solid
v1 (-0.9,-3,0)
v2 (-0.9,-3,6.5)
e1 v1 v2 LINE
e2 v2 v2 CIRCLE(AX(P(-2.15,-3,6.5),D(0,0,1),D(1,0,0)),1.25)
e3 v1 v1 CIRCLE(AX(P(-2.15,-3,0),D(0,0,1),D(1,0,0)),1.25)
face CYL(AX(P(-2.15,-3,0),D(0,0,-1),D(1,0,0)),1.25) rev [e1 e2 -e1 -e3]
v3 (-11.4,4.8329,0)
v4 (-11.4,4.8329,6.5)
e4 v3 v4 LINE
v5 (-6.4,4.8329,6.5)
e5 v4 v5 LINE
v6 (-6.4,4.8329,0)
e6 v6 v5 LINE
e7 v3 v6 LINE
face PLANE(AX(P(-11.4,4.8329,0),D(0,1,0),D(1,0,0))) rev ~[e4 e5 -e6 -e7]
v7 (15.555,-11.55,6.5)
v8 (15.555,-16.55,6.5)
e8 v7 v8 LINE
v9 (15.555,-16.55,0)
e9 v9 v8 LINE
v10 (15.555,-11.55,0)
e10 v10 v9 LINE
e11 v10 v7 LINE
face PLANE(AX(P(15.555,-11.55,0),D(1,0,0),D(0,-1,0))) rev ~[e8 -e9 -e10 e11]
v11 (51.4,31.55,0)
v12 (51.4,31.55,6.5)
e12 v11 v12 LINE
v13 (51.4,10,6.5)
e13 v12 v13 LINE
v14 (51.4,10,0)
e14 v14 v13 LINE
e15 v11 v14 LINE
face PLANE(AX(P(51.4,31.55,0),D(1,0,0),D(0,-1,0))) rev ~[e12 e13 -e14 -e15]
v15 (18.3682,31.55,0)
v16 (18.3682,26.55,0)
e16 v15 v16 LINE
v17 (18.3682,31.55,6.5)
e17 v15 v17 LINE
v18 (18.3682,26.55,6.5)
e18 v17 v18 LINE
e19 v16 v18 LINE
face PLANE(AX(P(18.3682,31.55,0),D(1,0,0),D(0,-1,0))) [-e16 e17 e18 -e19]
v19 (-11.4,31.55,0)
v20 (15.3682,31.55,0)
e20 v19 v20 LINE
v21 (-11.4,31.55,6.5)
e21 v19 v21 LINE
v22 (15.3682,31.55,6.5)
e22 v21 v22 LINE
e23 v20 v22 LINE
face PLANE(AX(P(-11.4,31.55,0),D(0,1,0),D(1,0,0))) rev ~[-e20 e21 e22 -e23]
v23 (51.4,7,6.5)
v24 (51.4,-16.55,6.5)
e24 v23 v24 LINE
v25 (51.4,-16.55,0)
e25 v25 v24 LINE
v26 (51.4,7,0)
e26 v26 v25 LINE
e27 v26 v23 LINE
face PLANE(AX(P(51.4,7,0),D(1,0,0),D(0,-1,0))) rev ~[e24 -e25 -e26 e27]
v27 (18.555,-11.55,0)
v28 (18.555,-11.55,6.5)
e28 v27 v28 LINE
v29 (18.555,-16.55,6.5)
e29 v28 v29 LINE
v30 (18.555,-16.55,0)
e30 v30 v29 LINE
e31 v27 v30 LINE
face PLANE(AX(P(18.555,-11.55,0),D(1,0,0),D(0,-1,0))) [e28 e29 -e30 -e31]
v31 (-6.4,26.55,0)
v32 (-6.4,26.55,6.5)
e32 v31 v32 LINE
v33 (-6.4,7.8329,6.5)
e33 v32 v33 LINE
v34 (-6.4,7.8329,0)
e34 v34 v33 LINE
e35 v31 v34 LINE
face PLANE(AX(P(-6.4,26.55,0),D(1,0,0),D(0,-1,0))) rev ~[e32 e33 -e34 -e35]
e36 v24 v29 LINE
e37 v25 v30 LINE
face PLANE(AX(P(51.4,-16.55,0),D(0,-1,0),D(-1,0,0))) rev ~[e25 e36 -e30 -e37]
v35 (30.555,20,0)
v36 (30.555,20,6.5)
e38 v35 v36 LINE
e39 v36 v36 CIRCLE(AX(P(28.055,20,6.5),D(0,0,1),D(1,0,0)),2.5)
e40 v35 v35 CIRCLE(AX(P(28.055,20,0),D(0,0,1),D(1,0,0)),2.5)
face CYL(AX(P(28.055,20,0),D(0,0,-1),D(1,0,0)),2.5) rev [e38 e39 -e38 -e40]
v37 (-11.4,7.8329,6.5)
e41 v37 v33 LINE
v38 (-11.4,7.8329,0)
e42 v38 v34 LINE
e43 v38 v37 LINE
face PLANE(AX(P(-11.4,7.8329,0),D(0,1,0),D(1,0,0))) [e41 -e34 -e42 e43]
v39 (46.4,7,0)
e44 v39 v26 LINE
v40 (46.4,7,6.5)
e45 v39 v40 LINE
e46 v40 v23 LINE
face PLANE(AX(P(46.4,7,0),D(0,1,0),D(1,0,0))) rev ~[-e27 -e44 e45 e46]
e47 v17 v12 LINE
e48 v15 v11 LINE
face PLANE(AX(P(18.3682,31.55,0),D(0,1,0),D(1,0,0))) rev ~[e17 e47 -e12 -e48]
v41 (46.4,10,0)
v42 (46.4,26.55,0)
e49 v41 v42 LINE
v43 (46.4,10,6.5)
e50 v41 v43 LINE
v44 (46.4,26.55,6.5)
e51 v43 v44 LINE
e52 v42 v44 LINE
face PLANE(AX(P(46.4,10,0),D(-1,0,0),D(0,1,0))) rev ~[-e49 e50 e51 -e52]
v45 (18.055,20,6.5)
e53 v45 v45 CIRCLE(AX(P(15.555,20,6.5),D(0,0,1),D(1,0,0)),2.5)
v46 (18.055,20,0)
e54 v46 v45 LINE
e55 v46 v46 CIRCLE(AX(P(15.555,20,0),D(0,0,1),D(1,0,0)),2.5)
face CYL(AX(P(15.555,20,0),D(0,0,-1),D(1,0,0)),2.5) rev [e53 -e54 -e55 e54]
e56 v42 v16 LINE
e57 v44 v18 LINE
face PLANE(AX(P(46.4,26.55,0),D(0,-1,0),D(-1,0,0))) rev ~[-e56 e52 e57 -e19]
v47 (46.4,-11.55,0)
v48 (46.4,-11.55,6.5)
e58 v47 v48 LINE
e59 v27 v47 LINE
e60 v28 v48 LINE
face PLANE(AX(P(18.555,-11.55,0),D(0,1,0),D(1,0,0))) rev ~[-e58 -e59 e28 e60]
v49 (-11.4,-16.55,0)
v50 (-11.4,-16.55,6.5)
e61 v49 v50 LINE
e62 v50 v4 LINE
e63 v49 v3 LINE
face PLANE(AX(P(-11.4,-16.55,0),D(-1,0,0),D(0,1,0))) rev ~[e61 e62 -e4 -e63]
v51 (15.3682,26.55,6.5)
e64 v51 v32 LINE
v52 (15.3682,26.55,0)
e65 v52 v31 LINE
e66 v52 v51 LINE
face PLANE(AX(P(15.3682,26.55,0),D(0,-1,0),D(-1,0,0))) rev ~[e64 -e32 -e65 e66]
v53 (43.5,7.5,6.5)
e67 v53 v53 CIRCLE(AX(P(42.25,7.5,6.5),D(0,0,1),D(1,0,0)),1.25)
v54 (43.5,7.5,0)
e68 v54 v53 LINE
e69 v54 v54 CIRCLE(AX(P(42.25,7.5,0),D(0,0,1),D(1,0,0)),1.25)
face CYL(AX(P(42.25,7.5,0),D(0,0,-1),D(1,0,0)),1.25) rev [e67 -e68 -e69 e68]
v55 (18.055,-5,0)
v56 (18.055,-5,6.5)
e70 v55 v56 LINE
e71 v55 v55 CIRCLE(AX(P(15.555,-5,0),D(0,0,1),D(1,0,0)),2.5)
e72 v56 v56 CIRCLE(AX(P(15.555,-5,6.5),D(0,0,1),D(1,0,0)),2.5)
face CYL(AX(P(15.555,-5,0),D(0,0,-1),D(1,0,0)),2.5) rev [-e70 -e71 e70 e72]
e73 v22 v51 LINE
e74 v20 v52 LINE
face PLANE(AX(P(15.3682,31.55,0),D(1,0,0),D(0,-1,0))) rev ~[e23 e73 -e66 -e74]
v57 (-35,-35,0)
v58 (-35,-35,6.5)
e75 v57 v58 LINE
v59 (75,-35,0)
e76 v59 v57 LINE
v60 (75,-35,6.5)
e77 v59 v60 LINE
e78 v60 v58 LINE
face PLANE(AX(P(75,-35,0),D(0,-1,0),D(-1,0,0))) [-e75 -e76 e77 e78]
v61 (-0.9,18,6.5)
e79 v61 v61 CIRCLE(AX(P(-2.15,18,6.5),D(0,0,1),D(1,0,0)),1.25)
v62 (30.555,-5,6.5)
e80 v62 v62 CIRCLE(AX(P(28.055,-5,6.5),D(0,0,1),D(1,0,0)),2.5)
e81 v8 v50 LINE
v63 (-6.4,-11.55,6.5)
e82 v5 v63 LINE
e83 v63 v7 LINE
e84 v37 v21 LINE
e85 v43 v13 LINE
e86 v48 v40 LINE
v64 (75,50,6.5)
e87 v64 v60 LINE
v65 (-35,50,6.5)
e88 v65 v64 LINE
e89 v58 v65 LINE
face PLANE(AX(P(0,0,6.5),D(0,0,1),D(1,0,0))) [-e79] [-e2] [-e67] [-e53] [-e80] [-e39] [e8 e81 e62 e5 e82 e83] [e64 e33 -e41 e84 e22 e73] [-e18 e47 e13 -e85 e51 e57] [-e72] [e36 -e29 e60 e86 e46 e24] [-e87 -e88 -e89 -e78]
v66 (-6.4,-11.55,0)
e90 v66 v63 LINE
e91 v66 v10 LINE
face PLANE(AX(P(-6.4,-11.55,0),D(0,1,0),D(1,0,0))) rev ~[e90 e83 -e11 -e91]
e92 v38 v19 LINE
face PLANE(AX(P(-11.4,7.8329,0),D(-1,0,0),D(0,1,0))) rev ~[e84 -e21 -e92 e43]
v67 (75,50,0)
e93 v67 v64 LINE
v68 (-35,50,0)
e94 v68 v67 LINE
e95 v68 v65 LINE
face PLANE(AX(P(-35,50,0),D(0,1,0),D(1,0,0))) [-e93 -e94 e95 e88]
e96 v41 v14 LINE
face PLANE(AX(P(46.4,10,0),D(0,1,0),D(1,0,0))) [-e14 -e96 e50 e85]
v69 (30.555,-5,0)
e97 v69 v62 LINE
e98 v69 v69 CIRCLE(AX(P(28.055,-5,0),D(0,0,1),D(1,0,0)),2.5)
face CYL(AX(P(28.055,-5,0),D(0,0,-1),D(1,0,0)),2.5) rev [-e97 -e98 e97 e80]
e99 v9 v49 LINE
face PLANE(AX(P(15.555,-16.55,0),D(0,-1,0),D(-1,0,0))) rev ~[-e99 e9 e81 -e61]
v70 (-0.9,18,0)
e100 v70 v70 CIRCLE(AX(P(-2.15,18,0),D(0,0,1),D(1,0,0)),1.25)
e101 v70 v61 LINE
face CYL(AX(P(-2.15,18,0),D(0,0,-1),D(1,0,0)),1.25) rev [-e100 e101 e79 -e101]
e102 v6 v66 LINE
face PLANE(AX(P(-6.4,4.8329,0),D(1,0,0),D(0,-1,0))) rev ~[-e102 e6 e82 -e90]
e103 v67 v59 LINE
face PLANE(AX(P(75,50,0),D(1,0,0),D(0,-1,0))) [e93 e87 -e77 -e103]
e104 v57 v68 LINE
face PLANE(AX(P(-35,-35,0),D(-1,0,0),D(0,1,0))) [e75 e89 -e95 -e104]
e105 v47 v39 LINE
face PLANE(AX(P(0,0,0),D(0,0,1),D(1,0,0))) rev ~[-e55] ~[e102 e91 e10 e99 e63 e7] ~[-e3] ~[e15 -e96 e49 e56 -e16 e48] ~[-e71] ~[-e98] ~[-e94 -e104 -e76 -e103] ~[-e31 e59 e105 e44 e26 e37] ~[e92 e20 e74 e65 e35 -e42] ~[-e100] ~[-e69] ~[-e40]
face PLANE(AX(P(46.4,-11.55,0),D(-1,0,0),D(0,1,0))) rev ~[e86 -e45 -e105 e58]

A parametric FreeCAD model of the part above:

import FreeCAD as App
import Part
import Sketcher

V = App.Vector


def add_polygon(sketch, points):
    """Adds a closed chain of lines whose ends are joined by coincident constraints."""
    first, n = sketch.GeometryCount, len(points)
    for a, b in zip(points, points[1:] + points[:1]):
        sketch.addGeometry(Part.LineSegment(App.Vector(*a, 0), App.Vector(*b, 0)), False)
    for i in range(n):
        sketch.addConstraint(Sketcher.Constraint("Coincident", first + i, 2, first + (i + 1) % n, 1))

doc = App.newDocument("Part")
body = doc.addObject("PartDesign::Body", "Body")

# Sketch on XY plane
sketch1 = body.newObject("Sketcher::SketchObject", "Sketch")
sketch1.AttachmentSupport = (doc.getObject("XY_Plane"), [""])
sketch1.MapMode = "FlatFace"
add_polygon(sketch1, [(75, 50), (-35, 50), (-35, -35), (75, -35)])  # lines 0-3
add_polygon(sketch1, [(-11.4, -16.55), (-11.4, 4.8329), (-6.4, 4.8329), (-6.4, -11.55), (15.555, -11.55), (15.555, -16.55)])  # lines 4-9
sketch1.addGeometry(Part.Circle(V(15.555, -5, 0), V(0, 0, 1), 2.5), False)  # 10
sketch1.addGeometry(Part.Circle(V(28.055, -5, 0), V(0, 0, 1), 2.5), False)  # 11
add_polygon(sketch1, [(46.4, -11.55), (46.4, 7), (51.4, 7), (51.4, -16.55), (18.555, -16.55), (18.555, -11.55)])  # lines 12-17
add_polygon(sketch1, [(-6.4, 7.8329), (-11.4, 7.8329), (-11.4, 31.55), (15.3682, 31.55), (15.3682, 26.55), (-6.4, 26.55)])  # lines 18-23
sketch1.addGeometry(Part.Circle(V(15.555, 20, 0), V(0, 0, 1), 2.5), False)  # 24
sketch1.addGeometry(Part.Circle(V(28.055, 20, 0), V(0, 0, 1), 2.5), False)  # 25
add_polygon(sketch1, [(18.3682, 26.55), (18.3682, 31.55), (51.4, 31.55), (51.4, 10), (46.4, 10), (46.4, 26.55)])  # lines 26-31
sketch1.addConstraint(Sketcher.Constraint("Horizontal", 0))
sketch1.addConstraint(Sketcher.Constraint("Vertical", 1))
sketch1.addConstraint(Sketcher.Constraint("Horizontal", 2))
sketch1.addConstraint(Sketcher.Constraint("Vertical", 3))
sketch1.addConstraint(Sketcher.Constraint("Vertical", 4))
sketch1.addConstraint(Sketcher.Constraint("Horizontal", 5))
sketch1.addConstraint(Sketcher.Constraint("Vertical", 6))
sketch1.addConstraint(Sketcher.Constraint("Horizontal", 7))
sketch1.addConstraint(Sketcher.Constraint("Vertical", 8))
sketch1.addConstraint(Sketcher.Constraint("Horizontal", 9))
sketch1.addConstraint(Sketcher.Constraint("Vertical", 12))
sketch1.addConstraint(Sketcher.Constraint("Horizontal", 13))
sketch1.addConstraint(Sketcher.Constraint("Vertical", 14))
sketch1.addConstraint(Sketcher.Constraint("Horizontal", 15))
sketch1.addConstraint(Sketcher.Constraint("Vertical", 16))
sketch1.addConstraint(Sketcher.Constraint("Horizontal", 17))
sketch1.addConstraint(Sketcher.Constraint("Horizontal", 18))
sketch1.addConstraint(Sketcher.Constraint("Vertical", 19))
sketch1.addConstraint(Sketcher.Constraint("Horizontal", 20))
sketch1.addConstraint(Sketcher.Constraint("Vertical", 21))
sketch1.addConstraint(Sketcher.Constraint("Horizontal", 22))
sketch1.addConstraint(Sketcher.Constraint("Vertical", 23))
sketch1.addConstraint(Sketcher.Constraint("Vertical", 26))
sketch1.addConstraint(Sketcher.Constraint("Horizontal", 27))
sketch1.addConstraint(Sketcher.Constraint("Vertical", 28))
sketch1.addConstraint(Sketcher.Constraint("Horizontal", 29))
sketch1.addConstraint(Sketcher.Constraint("Vertical", 30))
sketch1.addConstraint(Sketcher.Constraint("Horizontal", 31))
sketch1.addConstraint(Sketcher.Constraint("Equal", 10, 11))
sketch1.addConstraint(Sketcher.Constraint("Equal", 11, 24))
sketch1.addConstraint(Sketcher.Constraint("Equal", 24, 25))
sketch1.addConstraint(Sketcher.Constraint("Horizontal", 10, 3, 11, 3))
sketch1.addConstraint(Sketcher.Constraint("Horizontal", 24, 3, 25, 3))
sketch1.addConstraint(Sketcher.Constraint("Horizontal", 9, 2, 14, 2))
sketch1.addConstraint(Sketcher.Constraint("Horizontal", 7, 2, 16, 2))
sketch1.addConstraint(Sketcher.Constraint("Horizontal", 20, 2, 26, 2))
sketch1.addConstraint(Sketcher.Constraint("Horizontal", 22, 2, 30, 2))
sketch1.addConstraint(Sketcher.Constraint("Vertical", 10, 3, 24, 3))
sketch1.addConstraint(Sketcher.Constraint("Vertical", 11, 3, 25, 3))
sketch1.addConstraint(Sketcher.Constraint("Vertical", 24, 3, 7, 2))
sketch1.addConstraint(Sketcher.Constraint("Vertical", 9, 2, 18, 2))
sketch1.addConstraint(Sketcher.Constraint("Vertical", 6, 2, 22, 2))
sketch1.addConstraint(Sketcher.Constraint("Vertical", 14, 2, 27, 2))
sketch1.addConstraint(Sketcher.Constraint("Vertical", 17, 2, 29, 2))
sketch1.addConstraint(Sketcher.Constraint("Equal", 5, 13))
sketch1.addConstraint(Sketcher.Constraint("Equal", 29, 8))
sketch1.addConstraint(Sketcher.Constraint("Equal", 16, 21))
sketch1.addConstraint(Sketcher.Constraint("Diameter", 10, 5.0))
sketch1.addConstraint(Sketcher.Constraint("DistanceX", 0, 2, 0, 1, 110.0))
sketch1.addConstraint(Sketcher.Constraint("DistanceX", 5, 1, 5, 2, 5.0))
sketch1.addConstraint(Sketcher.Constraint("DistanceY", 1, 2, 1, 1, 85.0))
sketch1.addConstraint(Sketcher.Constraint("DistanceY", 10, 3, -1, 1, 5.0))
sketch1.addConstraint(Sketcher.Constraint("DistanceX", 8, 2, 15, 2, 3.0))
sketch1.addConstraint(Sketcher.Constraint("DistanceY", 4, 2, 18, 2, 3.0))
sketch1.addConstraint(Sketcher.Constraint("DistanceX", 20, 2, 26, 2, 3.0))
sketch1.addConstraint(Sketcher.Constraint("DistanceY", 13, 2, 28, 2, 3.0))
sketch1.addConstraint(Sketcher.Constraint("DistanceX", 1, 2, 6, 2, 28.6))
sketch1.addConstraint(Sketcher.Constraint("DistanceX", 7, 1, 7, 2, 21.955))
sketch1.addConstraint(Sketcher.Constraint("DistanceY", 6, 2, 10, 3, 6.55))
sketch1.addConstraint(Sketcher.Constraint("DistanceY", 1, 2, 6, 2, 23.45))
sketch1.addConstraint(Sketcher.Constraint("DistanceY", 24, 3, 21, 2, 6.55))
sketch1.addConstraint(Sketcher.Constraint("DistanceY", -1, 1, 24, 3, 20.0))
sketch1.addConstraint(Sketcher.Constraint("DistanceX", 0, 2, -1, 1, 35.0))
sketch1.addConstraint(Sketcher.Constraint("DistanceY", -1, 1, 12, 2, 7.0))
sketch1.addConstraint(Sketcher.Constraint("DistanceX", 11, 3, 12, 2, 18.345))
sketch1.addConstraint(Sketcher.Constraint("DistanceX", 10, 3, 12, 2, 30.845))
sketch1.addConstraint(Sketcher.Constraint("DistanceY", 4, 1, 4, 2, 21.383))
sketch1.addConstraint(Sketcher.Constraint("DistanceX", 20, 1, 20, 2, 26.7682))
pad1 = body.newObject("PartDesign::Pad", "Pad")
pad1.Profile = sketch1
pad1.Length = 6.5

# Sketch on XY plane
sketch2 = body.newObject("Sketcher::SketchObject", "Sketch001")
sketch2.AttachmentSupport = (doc.getObject("XY_Plane"), [""])
sketch2.MapMode = "FlatFace"
sketch2.addGeometry(Part.Circle(V(-2.15, 18, 0), V(0, 0, 1), 1.25), False)
sketch2.addGeometry(Part.Circle(V(-2.15, -3, 0), V(0, 0, 1), 1.25), False)
sketch2.addGeometry(Part.Circle(V(42.25, 7.5, 0), V(0, 0, 1), 1.25), False)
sketch2.addConstraint(Sketcher.Constraint("Equal", 0, 1))
sketch2.addConstraint(Sketcher.Constraint("Equal", 1, 2))
sketch2.addConstraint(Sketcher.Constraint("Vertical", 0, 3, 1, 3))
sketch2.addConstraint(Sketcher.Constraint("Diameter", 0, 2.5))
sketch2.addConstraint(Sketcher.Constraint("DistanceY", 1, 3, -1, 1, 3.0))
sketch2.addConstraint(Sketcher.Constraint("DistanceY", -1, 1, 0, 3, 18.0))
sketch2.addConstraint(Sketcher.Constraint("DistanceY", -1, 1, 2, 3, 7.5))
sketch2.addConstraint(Sketcher.Constraint("DistanceX", 0, 3, 2, 3, 44.4))
sketch2.addConstraint(Sketcher.Constraint("DistanceX", 0, 3, -1, 1, 2.15))
pocket1 = body.newObject("PartDesign::Pocket", "Pocket")
pocket1.Profile = sketch2
pocket1.Length = 6.5
pocket1.Reversed = True

doc.recompute()
